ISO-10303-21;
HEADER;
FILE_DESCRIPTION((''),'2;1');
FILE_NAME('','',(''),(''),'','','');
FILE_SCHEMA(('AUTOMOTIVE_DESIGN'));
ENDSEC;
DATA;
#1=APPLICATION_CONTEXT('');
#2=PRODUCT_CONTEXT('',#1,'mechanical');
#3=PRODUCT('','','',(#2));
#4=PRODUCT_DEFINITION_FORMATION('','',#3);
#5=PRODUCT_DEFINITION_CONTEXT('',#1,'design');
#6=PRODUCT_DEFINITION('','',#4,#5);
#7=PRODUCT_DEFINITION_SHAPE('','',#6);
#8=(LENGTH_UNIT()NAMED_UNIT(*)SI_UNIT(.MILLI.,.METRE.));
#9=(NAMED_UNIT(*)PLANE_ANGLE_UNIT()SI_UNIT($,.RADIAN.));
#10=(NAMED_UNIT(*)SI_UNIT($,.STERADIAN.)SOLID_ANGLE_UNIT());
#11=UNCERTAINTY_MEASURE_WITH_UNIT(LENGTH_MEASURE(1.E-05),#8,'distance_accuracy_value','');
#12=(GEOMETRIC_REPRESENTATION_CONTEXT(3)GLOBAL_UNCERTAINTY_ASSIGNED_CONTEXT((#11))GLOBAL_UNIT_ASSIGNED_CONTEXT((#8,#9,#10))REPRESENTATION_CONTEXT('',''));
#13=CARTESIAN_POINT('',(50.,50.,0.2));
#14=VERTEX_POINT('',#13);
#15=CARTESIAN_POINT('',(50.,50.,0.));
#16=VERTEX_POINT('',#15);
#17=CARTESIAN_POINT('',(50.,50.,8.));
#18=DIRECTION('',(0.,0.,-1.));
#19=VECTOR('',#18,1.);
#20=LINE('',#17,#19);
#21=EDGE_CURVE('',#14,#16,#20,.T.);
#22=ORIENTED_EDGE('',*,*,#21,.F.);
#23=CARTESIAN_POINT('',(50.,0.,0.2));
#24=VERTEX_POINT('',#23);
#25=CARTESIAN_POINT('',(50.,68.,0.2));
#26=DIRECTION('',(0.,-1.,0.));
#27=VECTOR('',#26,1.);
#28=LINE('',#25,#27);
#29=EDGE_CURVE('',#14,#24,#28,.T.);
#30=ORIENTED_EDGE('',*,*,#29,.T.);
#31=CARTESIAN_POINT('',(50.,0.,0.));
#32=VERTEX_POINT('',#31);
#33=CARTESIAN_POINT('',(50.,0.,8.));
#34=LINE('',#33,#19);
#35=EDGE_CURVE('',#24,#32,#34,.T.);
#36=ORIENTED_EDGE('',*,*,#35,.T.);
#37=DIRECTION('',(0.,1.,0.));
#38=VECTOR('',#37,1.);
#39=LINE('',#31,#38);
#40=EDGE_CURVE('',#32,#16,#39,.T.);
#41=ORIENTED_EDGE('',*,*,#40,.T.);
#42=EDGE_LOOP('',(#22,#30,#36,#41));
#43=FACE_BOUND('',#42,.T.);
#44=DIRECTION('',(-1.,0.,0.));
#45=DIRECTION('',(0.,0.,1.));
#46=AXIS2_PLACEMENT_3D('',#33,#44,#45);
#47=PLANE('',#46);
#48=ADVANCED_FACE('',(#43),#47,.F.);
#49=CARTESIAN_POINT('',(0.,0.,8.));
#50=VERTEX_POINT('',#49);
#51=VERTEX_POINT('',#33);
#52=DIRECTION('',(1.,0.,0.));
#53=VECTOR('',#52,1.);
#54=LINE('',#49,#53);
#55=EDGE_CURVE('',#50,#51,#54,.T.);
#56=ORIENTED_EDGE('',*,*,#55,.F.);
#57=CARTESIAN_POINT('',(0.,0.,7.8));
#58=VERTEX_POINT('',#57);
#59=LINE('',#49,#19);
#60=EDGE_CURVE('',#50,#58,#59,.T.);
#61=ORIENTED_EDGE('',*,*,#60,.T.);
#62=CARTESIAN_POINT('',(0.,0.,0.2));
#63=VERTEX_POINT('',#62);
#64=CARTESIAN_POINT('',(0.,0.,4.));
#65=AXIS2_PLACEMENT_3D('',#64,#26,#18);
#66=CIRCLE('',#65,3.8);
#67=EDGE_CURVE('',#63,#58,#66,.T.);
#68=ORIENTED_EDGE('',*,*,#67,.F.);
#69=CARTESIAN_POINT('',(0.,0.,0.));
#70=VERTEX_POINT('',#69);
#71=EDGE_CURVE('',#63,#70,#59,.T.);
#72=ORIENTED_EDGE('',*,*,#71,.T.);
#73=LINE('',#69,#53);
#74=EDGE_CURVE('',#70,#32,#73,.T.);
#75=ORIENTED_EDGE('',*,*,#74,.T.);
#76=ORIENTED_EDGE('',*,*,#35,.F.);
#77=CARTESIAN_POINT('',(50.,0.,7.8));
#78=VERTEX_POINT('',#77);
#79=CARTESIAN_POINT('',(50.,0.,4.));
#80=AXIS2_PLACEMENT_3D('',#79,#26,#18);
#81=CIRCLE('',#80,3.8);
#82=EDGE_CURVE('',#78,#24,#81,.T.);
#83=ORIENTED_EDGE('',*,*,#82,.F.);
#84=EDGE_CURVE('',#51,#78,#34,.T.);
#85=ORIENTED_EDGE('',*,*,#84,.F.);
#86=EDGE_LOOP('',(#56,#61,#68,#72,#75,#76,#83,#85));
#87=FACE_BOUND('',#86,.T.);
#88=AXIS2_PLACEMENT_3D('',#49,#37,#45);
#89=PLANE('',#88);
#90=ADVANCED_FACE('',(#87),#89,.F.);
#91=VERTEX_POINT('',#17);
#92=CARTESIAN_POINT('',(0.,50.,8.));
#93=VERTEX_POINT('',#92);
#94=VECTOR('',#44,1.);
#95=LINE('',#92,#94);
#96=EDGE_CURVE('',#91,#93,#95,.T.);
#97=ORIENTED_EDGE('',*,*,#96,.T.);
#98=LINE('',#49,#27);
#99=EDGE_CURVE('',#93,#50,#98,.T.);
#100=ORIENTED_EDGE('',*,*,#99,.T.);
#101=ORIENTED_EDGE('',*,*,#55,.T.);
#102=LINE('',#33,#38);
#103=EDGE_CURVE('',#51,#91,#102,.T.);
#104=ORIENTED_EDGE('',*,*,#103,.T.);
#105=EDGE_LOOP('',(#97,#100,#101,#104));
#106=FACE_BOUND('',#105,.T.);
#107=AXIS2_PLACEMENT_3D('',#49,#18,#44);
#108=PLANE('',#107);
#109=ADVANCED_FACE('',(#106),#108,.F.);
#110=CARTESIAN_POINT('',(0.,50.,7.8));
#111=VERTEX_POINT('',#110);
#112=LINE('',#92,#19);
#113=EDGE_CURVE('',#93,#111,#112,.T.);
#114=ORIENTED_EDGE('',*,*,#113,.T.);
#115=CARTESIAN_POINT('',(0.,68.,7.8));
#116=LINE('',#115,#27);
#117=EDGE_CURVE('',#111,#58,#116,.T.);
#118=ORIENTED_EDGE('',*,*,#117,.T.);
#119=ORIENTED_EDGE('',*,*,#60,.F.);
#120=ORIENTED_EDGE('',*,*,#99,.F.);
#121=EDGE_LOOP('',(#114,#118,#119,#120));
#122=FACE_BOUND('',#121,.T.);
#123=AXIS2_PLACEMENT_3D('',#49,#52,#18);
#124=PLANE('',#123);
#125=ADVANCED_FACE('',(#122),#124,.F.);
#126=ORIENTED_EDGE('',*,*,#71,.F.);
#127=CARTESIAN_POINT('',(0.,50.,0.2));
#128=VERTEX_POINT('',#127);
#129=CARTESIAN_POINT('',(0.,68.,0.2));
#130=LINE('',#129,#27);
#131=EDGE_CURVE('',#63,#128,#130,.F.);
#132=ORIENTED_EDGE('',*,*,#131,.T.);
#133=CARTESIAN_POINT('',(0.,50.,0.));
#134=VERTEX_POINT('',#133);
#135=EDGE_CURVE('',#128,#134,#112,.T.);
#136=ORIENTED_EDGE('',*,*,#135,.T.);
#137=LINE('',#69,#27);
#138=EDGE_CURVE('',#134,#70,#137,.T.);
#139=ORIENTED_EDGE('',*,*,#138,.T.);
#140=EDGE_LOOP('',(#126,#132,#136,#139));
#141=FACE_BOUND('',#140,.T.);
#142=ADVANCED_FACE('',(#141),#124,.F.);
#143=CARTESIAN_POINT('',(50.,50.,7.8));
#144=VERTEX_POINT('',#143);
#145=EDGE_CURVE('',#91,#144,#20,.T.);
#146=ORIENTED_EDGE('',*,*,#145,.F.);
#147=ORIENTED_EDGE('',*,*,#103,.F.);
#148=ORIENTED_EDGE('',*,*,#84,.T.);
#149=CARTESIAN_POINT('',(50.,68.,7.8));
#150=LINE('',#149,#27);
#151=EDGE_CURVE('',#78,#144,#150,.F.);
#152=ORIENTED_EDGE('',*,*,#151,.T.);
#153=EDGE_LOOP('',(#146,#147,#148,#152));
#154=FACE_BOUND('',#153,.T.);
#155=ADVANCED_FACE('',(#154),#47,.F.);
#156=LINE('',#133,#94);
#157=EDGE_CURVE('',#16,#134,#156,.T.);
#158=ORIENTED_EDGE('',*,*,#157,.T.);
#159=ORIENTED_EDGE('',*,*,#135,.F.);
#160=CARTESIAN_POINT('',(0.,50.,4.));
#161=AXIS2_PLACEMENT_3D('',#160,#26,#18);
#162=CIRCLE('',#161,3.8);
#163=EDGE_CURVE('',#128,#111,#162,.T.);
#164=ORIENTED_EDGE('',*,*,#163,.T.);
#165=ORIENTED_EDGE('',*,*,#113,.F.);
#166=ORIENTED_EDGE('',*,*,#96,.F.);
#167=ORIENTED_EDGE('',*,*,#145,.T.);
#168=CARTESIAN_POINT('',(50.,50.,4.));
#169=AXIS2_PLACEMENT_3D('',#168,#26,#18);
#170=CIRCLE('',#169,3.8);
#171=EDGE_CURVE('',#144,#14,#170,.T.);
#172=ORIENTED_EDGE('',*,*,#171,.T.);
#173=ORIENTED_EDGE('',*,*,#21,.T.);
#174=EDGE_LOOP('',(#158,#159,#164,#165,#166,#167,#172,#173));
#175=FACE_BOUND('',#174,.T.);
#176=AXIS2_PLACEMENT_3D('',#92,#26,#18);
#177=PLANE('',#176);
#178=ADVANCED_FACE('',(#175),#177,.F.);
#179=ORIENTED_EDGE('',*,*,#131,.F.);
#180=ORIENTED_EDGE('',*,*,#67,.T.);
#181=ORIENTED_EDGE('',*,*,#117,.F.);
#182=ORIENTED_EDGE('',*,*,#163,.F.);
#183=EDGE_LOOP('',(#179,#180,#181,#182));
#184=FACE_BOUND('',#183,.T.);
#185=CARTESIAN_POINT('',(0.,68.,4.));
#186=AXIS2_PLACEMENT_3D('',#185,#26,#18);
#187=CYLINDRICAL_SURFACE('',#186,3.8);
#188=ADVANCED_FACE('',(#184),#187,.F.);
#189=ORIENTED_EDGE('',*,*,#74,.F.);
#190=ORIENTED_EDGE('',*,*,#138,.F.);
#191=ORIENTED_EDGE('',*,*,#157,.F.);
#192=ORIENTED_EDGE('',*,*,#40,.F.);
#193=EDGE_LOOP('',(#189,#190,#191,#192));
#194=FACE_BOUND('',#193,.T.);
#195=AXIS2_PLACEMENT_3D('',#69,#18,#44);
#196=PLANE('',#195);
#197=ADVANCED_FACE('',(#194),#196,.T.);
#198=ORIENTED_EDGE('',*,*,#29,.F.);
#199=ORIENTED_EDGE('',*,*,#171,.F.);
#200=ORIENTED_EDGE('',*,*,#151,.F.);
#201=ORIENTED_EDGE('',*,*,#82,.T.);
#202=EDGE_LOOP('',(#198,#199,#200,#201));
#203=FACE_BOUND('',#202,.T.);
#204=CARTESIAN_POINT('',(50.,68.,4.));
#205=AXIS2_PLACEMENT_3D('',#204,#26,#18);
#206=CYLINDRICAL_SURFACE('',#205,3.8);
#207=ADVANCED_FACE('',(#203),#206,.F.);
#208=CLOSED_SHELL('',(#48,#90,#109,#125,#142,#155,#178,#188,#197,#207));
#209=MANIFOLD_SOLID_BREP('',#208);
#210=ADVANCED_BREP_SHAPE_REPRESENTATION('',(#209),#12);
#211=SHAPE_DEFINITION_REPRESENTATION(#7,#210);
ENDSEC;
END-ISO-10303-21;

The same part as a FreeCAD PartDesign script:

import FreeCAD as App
import Part
import Sketcher
from FreeCAD import Vector
Q = App.Units.Quantity


def add_polygon(sketch, points):
    """Adds a closed chain of lines whose ends are joined by coincident constraints."""
    first, n = sketch.GeometryCount, len(points)
    for a, b in zip(points, points[1:] + points[:1]):
        sketch.addGeometry(Part.LineSegment(App.Vector(*a, 0), App.Vector(*b, 0)), False)
    for i in range(n):
        sketch.addConstraint(Sketcher.Constraint("Coincident", first + i, 2, first + (i + 1) % n, 1))

doc = App.newDocument("Part")
body = doc.addObject("PartDesign::Body", "Body")

sketch1 = body.newObject("Sketcher::SketchObject", "Sketch")
sketch1.AttachmentSupport = (doc.getObject("XY_Plane"), [""])
sketch1.MapMode = "FlatFace"
add_polygon(sketch1, [(0, 50), (0, 0), (50, 0), (50, 50)])
sketch1.addConstraint([
    Sketcher.Constraint("Vertical", 0),
    Sketcher.Constraint("Horizontal", 1),
    Sketcher.Constraint("Vertical", 2),
    Sketcher.Constraint("Horizontal", 3),
    Sketcher.Constraint("Coincident", 0, 2, -1, 1),
    Sketcher.Constraint("Equal", 3, 0),
    Sketcher.Constraint("DistanceX", 1, 1, 1, 2, Q("50 mm")),
])
pad1 = body.newObject("PartDesign::Pad", "Pad")
pad1.Profile = sketch1
pad1.Length = 8

sketch2 = body.newObject("Sketcher::SketchObject", "Sketch001")
sketch2.AttachmentSupport = (doc.getObject("XZ_Plane"), [""])
sketch2.MapMode = "FlatFace"
sketch2.addGeometry([
    Part.Circle(Vector(0, 4, 0), Vector(0, 0, 1), 3.8),
    Part.Circle(Vector(50, 4, 0), Vector(0, 0, 1), 3.8),
], False)
sketch2.addConstraint([
    Sketcher.Constraint("Equal", 0, 1),
    Sketcher.Constraint("PointOnObject", 0, 3, -2),
    Sketcher.Constraint("Horizontal", 0, 3, 1, 3),
    Sketcher.Constraint("Diameter", 0, Q("7.6 mm")),
    Sketcher.Constraint("DistanceY", -1, 1, 0, 3, Q("4 mm")),
    Sketcher.Constraint("DistanceX", -1, 1, 1, 3, Q("50 mm")),
])
pocket1 = body.newObject("PartDesign::Pocket", "Pocket")
pocket1.Profile = sketch2
pocket1.Length = 68

doc.recompute()
